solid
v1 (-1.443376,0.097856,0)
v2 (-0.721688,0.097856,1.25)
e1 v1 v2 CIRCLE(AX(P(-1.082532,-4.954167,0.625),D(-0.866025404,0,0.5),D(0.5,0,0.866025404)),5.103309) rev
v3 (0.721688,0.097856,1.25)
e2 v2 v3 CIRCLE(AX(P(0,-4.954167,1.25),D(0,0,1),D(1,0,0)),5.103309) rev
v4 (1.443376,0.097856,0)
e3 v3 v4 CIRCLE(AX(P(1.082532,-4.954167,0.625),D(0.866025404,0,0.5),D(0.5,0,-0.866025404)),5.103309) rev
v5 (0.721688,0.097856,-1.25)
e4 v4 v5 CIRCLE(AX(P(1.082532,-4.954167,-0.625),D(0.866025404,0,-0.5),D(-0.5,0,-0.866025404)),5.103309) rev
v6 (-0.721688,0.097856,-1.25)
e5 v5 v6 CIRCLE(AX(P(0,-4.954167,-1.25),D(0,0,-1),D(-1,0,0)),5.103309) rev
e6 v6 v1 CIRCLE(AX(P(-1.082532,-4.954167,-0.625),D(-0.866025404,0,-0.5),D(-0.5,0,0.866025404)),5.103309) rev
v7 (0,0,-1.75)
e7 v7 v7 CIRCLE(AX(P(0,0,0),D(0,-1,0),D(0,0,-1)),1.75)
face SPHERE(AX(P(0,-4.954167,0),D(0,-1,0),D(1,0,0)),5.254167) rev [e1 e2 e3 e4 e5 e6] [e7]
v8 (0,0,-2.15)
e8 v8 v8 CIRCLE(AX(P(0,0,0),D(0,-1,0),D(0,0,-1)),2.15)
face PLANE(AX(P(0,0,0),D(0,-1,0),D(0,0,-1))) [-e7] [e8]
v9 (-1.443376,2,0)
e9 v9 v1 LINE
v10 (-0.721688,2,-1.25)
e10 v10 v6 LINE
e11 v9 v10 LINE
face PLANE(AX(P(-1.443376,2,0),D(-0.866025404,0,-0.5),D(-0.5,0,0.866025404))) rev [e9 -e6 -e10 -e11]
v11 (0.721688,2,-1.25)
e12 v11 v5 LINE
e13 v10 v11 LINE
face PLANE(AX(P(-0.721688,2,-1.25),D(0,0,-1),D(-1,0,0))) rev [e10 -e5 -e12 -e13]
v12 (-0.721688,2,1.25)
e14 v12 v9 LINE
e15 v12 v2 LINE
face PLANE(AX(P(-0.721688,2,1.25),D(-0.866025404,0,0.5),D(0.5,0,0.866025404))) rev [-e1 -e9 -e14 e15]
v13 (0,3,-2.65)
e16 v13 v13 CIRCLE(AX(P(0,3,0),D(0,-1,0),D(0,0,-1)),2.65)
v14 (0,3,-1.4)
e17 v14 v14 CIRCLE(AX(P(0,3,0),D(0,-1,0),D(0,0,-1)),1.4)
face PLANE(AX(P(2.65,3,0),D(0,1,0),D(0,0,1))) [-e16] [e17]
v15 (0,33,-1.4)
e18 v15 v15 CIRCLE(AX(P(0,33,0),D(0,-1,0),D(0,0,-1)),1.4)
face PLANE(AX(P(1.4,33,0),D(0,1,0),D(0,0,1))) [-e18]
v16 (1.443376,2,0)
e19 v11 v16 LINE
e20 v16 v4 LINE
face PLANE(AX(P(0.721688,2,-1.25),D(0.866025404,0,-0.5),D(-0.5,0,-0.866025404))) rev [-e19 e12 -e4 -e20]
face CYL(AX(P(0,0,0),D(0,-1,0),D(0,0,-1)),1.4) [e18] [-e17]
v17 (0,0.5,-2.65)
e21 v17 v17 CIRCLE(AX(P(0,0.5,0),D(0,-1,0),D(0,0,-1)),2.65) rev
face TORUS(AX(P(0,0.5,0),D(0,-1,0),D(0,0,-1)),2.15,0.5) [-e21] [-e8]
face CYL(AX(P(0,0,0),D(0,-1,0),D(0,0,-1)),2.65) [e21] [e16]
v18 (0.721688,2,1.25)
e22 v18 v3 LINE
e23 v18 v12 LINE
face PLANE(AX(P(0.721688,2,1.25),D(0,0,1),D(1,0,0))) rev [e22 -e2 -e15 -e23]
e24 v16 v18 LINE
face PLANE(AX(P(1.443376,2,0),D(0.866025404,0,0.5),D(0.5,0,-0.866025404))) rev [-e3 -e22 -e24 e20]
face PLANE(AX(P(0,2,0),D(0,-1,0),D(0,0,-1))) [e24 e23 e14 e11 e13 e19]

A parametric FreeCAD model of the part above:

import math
import FreeCAD as App
import Part
import Sketcher
Q = App.Units.Quantity


def edges_at(feature, points):
    """Names of the edges that pass closest to the given points."""
    edges = feature.Shape.Edges
    near = lambda p: min(range(len(edges)), key=lambda i: edges[i].distToShape(Part.Vertex(*p))[0])
    return sorted({f"Edge{near(p) + 1}" for p in points})


def add_polygon(sketch, points):
    """Adds a closed chain of lines whose ends are joined by coincident constraints."""
    first, n = sketch.GeometryCount, len(points)
    for a, b in zip(points, points[1:] + points[:1]):
        sketch.addGeometry(Part.LineSegment(App.Vector(*a, 0), App.Vector(*b, 0)), False)
    for i in range(n):
        sketch.addConstraint(Sketcher.Constraint("Coincident", first + i, 2, first + (i + 1) % n, 1))

doc = App.newDocument("Part")
body = doc.addObject("PartDesign::Body", "Body")

# Sketch on XY plane
sketch1 = body.newObject("Sketcher::SketchObject", "Sketch")
sketch1.AttachmentSupport = (doc.getObject("XY_Plane"), [""])
sketch1.MapMode = "FlatFace"
add_polygon(sketch1, [(0, 0), (2.65, 0), (2.65, 3), (1.4, 3), (1.4, 33), (0, 33)])  # lines 0-5
sketch1.addConstraint([
    Sketcher.Constraint("Horizontal", 0),
    Sketcher.Constraint("Vertical", 1),
    Sketcher.Constraint("Horizontal", 2),
    Sketcher.Constraint("Vertical", 3),
    Sketcher.Constraint("Horizontal", 4),
    Sketcher.Constraint("Vertical", 5),
    Sketcher.Constraint("Coincident", 5, 2, -1, 1),
    Sketcher.Constraint("DistanceY", 1, 1, 1, 2, Q("3 mm")),
    Sketcher.Constraint("DistanceY", 3, 1, 3, 2, Q("30 mm")),
    Sketcher.Constraint("DistanceX", 4, 2, 4, 1, Q("1.4 mm")),
    Sketcher.Constraint("DistanceX", 0, 1, 0, 2, Q("2.65 mm")),
])
revolution = body.newObject("PartDesign::Revolution", "Revolution")
revolution.Profile = sketch1
revolution.ReferenceAxis = (sketch1, ["V_Axis"])
revolution.Angle = 360

# Sketch on XZ plane
sketch2 = body.newObject("Sketcher::SketchObject", "Sketch001")
sketch2.AttachmentSupport = (doc.getObject("XZ_Plane"), [""])
sketch2.MapMode = "FlatFace"
add_polygon(sketch2, [(-1.443376, 0), (-0.721688, -1.25), (0.721688, -1.25), (1.443376, 0), (0.721688, 1.25), (-0.721688, 1.25)])  # lines 0-5
sketch2.addConstraint([
    Sketcher.Constraint("Horizontal", 1),
    Sketcher.Constraint("Horizontal", 4),
    Sketcher.Constraint("Symmetric", 0, 2, 3, 2, -1, 1),
    Sketcher.Constraint("Symmetric", 2, 2, 5, 2, -1, 1),
    Sketcher.Constraint("PointOnObject", 2, 2, -1),
    Sketcher.Constraint("Parallel", 2, 5),
    Sketcher.Constraint("Vertical", 1, 2, 3, 2),
    Sketcher.Constraint("Angle", 0, Q("-60 deg")),
    Sketcher.Constraint("DistanceY", 1, 2, 3, 2, Q("2.5 mm")),
    Sketcher.Constraint("DistanceX", 1, 1, 1, 2, Q("1.443376 mm")),
])
pocket1 = body.newObject("PartDesign::Pocket", "Pocket")
pocket1.Profile = sketch2
pocket1.Length = 2

# Sketch on XY plane
sketch3 = body.newObject("Sketcher::SketchObject", "Sketch002")
sketch3.AttachmentSupport = (doc.getObject("XY_Plane"), [""])
sketch3.MapMode = "FlatFace"
sketch3.addGeometry([
    Part.LineSegment(App.Vector(0, 0, 0), App.Vector(0, 0.3, 0)),
    Part.ArcOfCircle(Part.Circle(App.Vector(0, -4.954167, 0), App.Vector(0, 0, 1), 5.254167), math.radians(70.544843), math.radians(90)),
    Part.LineSegment(App.Vector(1.75, 0, 0), App.Vector(0, 0, 0)),
], False)
sketch3.addConstraint([
    Sketcher.Constraint("Coincident", 0, 2, 1, 2),
    Sketcher.Constraint("Coincident", 1, 1, 2, 1),
    Sketcher.Constraint("Coincident", 2, 2, 0, 1),
    Sketcher.Constraint("Vertical", 0),
    Sketcher.Constraint("Horizontal", 2),
    Sketcher.Constraint("Coincident", 2, 2, -1, 1),
    Sketcher.Constraint("PointOnObject", 1, 3, -2),
    Sketcher.Constraint("DistanceY", 0, 1, 0, 2, Q("0.3 mm")),
    Sketcher.Constraint("DistanceX", 2, 2, 2, 1, Q("1.75 mm")),
])
groove = body.newObject("PartDesign::Groove", "Groove")
groove.Profile = sketch3
groove.ReferenceAxis = (sketch3, ["V_Axis"])
groove.Angle = 360
doc.recompute()

fillet = body.newObject("PartDesign::Fillet", "Fillet")
fillet.Base = (groove, edges_at(groove, [(-2.65, 0, 0)]))
fillet.Radius = 0.5

doc.recompute()
